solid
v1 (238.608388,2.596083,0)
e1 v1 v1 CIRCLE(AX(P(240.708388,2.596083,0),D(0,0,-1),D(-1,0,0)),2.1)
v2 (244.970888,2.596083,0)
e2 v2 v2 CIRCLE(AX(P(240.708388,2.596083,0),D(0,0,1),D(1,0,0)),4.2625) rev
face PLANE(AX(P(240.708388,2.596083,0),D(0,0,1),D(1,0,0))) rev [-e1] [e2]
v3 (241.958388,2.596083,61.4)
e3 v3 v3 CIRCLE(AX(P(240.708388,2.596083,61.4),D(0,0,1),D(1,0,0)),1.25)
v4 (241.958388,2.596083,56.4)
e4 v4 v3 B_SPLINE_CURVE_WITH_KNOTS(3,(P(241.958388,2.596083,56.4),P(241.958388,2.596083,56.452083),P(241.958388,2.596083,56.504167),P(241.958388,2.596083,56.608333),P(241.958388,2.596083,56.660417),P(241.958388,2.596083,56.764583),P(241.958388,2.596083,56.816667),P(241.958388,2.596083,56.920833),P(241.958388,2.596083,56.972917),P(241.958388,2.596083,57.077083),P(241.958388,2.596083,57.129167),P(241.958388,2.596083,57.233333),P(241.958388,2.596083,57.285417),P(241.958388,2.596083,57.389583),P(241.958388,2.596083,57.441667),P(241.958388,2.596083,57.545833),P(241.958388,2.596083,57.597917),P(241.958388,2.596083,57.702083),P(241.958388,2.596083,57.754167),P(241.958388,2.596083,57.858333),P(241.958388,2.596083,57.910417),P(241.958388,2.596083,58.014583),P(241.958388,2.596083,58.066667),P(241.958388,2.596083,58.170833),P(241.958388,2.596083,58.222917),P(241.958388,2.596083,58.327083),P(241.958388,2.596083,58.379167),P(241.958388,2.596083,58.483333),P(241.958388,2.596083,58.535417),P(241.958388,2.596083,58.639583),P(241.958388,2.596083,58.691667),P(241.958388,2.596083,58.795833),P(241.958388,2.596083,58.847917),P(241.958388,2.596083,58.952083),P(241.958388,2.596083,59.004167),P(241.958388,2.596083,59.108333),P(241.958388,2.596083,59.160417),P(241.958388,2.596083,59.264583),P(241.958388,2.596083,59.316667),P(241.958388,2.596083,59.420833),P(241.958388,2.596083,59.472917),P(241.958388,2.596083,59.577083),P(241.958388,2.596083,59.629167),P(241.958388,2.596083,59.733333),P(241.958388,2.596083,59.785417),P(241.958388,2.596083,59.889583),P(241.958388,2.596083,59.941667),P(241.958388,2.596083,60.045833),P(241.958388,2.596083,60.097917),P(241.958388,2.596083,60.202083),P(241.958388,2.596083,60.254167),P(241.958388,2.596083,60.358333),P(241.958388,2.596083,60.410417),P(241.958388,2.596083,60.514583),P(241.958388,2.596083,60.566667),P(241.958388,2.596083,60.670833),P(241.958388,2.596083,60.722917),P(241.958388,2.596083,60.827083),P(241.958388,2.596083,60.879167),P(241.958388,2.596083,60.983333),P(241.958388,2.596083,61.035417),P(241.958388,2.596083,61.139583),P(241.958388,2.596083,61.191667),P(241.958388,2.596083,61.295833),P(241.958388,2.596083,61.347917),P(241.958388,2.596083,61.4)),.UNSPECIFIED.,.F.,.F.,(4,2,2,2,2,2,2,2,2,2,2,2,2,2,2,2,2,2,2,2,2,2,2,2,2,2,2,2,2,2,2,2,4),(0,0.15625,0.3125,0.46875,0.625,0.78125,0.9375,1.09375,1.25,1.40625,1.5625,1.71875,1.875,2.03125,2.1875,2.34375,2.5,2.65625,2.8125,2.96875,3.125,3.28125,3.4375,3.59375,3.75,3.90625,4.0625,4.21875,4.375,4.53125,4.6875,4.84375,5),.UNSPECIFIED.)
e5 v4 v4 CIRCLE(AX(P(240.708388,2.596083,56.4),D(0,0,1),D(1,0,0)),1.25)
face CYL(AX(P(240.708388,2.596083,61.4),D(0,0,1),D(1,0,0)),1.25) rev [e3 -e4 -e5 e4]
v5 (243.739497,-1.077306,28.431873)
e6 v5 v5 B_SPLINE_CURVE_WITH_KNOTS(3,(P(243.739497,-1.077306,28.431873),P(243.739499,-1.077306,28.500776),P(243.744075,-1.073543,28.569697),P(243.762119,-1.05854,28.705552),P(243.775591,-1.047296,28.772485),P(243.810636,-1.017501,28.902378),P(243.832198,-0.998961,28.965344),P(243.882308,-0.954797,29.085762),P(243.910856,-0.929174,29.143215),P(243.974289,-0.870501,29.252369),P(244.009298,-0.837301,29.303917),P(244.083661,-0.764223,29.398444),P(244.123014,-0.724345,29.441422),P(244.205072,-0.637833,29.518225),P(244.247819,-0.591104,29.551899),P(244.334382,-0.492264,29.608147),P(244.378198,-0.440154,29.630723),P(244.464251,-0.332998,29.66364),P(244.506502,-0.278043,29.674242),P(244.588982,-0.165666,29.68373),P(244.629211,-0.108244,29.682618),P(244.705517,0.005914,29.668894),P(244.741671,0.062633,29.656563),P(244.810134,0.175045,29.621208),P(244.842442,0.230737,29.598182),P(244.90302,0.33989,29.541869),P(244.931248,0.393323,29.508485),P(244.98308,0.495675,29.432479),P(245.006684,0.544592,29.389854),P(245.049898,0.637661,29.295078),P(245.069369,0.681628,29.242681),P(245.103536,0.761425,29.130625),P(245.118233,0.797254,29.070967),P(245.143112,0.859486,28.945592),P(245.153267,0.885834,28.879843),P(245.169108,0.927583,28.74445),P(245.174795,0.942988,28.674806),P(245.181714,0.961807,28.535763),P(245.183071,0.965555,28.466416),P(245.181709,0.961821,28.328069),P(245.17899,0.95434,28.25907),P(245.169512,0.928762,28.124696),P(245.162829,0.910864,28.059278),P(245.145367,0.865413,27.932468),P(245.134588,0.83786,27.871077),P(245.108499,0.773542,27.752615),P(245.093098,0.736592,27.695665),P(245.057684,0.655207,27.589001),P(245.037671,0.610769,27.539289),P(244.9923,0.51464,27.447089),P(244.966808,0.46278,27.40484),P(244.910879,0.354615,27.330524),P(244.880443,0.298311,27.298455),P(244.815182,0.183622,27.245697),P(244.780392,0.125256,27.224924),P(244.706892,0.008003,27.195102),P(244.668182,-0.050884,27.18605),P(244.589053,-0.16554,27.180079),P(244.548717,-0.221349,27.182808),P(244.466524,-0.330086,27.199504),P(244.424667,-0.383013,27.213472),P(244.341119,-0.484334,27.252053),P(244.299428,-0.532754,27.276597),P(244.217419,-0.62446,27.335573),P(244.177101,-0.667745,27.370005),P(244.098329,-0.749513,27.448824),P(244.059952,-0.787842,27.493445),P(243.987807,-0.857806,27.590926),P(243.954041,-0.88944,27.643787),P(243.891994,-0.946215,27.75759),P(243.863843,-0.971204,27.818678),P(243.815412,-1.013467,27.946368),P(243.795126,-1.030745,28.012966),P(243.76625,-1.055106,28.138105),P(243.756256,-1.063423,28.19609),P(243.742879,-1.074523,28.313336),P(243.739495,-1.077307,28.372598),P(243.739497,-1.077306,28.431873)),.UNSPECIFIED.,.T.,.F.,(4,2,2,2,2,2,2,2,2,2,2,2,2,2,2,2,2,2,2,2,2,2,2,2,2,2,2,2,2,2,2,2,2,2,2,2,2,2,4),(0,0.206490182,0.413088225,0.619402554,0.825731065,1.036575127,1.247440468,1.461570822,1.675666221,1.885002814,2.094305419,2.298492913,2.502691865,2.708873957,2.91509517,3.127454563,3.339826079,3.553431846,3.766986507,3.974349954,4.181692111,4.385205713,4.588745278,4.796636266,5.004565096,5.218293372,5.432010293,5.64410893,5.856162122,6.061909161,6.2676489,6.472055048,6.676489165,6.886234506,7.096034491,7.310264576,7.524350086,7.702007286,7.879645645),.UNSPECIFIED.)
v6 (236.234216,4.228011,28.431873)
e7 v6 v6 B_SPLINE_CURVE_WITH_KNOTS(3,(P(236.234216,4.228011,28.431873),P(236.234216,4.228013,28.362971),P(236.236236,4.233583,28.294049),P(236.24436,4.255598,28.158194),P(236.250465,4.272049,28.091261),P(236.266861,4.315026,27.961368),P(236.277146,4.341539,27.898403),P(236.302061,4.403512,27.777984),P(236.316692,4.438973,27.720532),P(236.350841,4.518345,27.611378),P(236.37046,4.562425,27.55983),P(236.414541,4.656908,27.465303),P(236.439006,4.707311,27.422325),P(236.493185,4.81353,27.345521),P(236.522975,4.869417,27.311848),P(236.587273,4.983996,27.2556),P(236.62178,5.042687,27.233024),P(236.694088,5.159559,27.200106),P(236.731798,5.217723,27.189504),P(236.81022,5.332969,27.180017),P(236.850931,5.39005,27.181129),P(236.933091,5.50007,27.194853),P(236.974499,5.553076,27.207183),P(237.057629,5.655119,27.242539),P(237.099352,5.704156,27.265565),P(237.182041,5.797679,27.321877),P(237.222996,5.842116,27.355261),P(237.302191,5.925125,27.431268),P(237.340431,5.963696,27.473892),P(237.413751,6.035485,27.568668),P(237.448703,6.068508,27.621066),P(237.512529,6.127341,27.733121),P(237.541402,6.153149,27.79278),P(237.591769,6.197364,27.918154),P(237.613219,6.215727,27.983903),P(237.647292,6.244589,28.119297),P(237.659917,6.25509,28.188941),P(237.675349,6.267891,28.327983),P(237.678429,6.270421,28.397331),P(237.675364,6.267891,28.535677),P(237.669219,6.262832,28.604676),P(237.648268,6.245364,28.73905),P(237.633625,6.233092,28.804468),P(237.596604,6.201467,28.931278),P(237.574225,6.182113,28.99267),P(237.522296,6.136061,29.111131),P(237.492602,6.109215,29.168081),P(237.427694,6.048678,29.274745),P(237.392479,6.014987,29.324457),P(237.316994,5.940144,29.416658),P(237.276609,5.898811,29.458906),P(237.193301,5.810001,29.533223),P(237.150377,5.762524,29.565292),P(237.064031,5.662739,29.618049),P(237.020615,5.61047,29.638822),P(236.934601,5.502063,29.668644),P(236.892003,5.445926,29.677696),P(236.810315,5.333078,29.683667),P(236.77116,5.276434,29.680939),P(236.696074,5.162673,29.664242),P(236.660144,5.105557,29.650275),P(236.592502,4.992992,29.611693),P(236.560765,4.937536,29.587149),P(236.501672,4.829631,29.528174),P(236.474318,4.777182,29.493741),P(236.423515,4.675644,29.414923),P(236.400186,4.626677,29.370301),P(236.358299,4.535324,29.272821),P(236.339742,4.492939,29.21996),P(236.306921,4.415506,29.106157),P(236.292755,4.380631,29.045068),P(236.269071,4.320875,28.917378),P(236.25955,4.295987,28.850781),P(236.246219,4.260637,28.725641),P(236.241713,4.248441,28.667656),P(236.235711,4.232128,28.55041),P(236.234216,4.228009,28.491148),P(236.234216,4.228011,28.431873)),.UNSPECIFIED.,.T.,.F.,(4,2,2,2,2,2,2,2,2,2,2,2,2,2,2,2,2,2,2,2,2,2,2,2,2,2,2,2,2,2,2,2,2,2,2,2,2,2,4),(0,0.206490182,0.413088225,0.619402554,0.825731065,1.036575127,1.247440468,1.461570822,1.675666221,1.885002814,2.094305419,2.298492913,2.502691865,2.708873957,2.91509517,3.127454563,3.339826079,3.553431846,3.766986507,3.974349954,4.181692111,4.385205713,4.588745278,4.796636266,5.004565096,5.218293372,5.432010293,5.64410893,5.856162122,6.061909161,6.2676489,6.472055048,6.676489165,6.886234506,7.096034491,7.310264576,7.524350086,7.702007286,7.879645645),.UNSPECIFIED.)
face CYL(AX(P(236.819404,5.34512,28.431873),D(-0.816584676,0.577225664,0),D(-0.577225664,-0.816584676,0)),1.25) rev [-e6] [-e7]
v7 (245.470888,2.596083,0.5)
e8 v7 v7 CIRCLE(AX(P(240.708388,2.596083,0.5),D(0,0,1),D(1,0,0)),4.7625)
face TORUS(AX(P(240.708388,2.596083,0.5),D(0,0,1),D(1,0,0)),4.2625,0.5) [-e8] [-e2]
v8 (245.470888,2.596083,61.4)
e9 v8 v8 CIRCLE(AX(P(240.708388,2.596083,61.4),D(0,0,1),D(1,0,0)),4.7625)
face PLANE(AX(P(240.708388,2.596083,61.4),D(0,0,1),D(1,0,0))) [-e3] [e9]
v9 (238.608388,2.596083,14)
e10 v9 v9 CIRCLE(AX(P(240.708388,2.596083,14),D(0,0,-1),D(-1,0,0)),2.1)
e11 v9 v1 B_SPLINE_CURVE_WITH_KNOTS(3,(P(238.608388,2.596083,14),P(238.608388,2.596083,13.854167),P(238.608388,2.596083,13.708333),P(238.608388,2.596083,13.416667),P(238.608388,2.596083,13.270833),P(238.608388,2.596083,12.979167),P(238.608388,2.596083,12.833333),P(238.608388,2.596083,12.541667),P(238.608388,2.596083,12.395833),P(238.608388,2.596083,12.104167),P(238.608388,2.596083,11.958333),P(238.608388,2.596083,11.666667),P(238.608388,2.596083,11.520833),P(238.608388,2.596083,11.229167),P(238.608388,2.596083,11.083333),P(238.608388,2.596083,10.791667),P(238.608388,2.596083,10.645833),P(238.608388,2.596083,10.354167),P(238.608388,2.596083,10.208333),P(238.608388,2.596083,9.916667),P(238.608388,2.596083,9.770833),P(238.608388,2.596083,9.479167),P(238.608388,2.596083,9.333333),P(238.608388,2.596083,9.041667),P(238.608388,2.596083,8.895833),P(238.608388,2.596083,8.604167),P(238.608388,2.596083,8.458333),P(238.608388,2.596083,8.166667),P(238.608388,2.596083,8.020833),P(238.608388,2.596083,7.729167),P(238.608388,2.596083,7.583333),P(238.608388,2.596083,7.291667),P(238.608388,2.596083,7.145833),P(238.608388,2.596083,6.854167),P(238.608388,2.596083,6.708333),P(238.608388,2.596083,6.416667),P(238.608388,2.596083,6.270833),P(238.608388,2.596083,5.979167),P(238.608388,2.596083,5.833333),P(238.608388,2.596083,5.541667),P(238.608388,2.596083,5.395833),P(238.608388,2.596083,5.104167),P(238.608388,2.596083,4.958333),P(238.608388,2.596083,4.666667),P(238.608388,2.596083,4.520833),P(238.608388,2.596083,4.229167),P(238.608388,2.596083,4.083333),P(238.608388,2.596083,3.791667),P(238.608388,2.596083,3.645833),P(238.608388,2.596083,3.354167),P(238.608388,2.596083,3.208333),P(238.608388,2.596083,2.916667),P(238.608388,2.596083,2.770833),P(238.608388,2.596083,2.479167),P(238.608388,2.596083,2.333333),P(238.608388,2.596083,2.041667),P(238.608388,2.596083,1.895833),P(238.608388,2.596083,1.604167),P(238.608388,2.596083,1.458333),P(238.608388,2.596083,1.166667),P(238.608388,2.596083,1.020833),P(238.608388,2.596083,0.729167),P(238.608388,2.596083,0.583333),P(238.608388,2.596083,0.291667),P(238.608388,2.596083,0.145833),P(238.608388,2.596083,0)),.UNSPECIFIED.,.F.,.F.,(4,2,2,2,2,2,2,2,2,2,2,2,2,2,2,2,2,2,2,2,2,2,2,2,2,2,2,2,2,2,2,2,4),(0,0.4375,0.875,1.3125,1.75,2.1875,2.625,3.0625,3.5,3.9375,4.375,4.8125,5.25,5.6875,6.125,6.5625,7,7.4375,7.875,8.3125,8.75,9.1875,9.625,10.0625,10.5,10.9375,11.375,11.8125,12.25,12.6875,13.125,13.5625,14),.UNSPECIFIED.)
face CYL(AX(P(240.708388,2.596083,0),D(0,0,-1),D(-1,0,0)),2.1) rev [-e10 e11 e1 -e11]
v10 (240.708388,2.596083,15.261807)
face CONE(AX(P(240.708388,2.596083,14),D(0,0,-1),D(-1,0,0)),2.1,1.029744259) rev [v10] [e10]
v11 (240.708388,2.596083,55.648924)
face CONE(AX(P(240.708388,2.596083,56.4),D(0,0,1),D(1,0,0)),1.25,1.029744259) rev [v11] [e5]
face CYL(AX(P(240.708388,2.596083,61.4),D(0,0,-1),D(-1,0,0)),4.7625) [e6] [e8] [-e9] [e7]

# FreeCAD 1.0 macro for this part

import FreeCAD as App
import Part
import Sketcher
Q = App.Units.Quantity


def edges_at(feature, points):
    """Names of the edges that pass closest to the given points."""
    edges = feature.Shape.Edges
    near = lambda p: min(range(len(edges)), key=lambda i: edges[i].distToShape(Part.Vertex(*p))[0])
    return sorted({f"Edge{near(p) + 1}" for p in points})

doc = App.newDocument("Part")
params = doc.addObject("Spreadsheet::Sheet", "Params")
for row, (alias, value) in enumerate([
    ("pad1_length", "61.4 mm"),
    ("sketch2_diameter", "4.2 mm"),
    ("hole_diameter", "4.2 mm"),
    ("hole_depth", "14 mm"),
    ("fillet_radius", "0.5 mm"),
    ("sketch3_diameter", "2.5 mm"),
    ("hole2_diameter", "2.5 mm"),
    ("hole2_depth", "5 mm"),
    ("sketch4_diameter", "2.5 mm"),
    ("hole3_diameter", "2.5 mm"),
    ("hole3_depth", "10 mm"),
], start=1):
    params.set(f"A{row}", alias)
    params.set(f"B{row}", "=" + value)
    params.setAlias(f"B{row}", alias)

body = doc.addObject("PartDesign::Body", "Body")

# Sketch on XY plane
sketch1 = body.newObject("Sketcher::SketchObject", "Sketch")
sketch1.AttachmentSupport = (doc.getObject("XY_Plane"), [""])
sketch1.MapMode = "FlatFace"
sketch1.addGeometry(Part.Circle(App.Vector(240.7, 2.6, 0), App.Vector(0, 0, 1), 4.8), False)
sketch1.addConstraint([
    Sketcher.Constraint("Diameter", 0, Q("9.525 mm")),
    Sketcher.Constraint("DistanceX", -1, 1, 0, 3, Q("240.708388 mm")),
    Sketcher.Constraint("DistanceY", -1, 1, 0, 3, Q("2.596083 mm")),
])
pad1 = body.newObject("PartDesign::Pad", "Pad")
pad1.Profile = sketch1
pad1.setExpression("Length", "Params.pad1_length")

# Sketch on XY plane
sketch2 = body.newObject("Sketcher::SketchObject", "Sketch001")
sketch2.AttachmentSupport = (doc.getObject("XY_Plane"), [""])
sketch2.MapMode = "FlatFace"
sketch2.addGeometry(Part.Circle(App.Vector(240.7, 2.6, 0), App.Vector(0, 0, 1), 2.1), False)
sketch2.addConstraint([
    Sketcher.Constraint("Diameter", 0, Q("4.2 mm")),
    Sketcher.Constraint("DistanceX", -1, 1, 0, 3, Q("240.708388 mm")),
    Sketcher.Constraint("DistanceY", -1, 1, 0, 3, Q("2.596083 mm")),
])
sketch2.setExpression("Constraints[0]", "Params.sketch2_diameter")
doc.recompute()
hole = body.newObject("PartDesign::Hole", "Hole")
hole.Profile = sketch2
hole.ThreadType = "None"
hole.setExpression("Diameter", "Params.hole_diameter")
hole.DepthType = "Dimension"
hole.setExpression("Depth", "Params.hole_depth")
hole.DrillPoint = "Angled"
hole.DrillPointAngle = 118
hole.Reversed = True
doc.recompute()

fillet = body.newObject("PartDesign::Fillet", "Fillet")
fillet.Base = (hole, edges_at(hole, [(235.946, 2.596, 0)]))
fillet.setExpression("Radius", "Params.fillet_radius")

# Sketch on XY plane
sketch3 = body.newObject("Sketcher::SketchObject", "Sketch002")
sketch3.AttachmentSupport = (doc.getObject("XY_Plane"), [""])
sketch3.MapMode = "FlatFace"
sketch3.AttachmentOffset = App.Placement(App.Vector(0, 0, 61.4), App.Rotation())
sketch3.addGeometry(Part.Circle(App.Vector(240.7, 2.6, 0), App.Vector(0, 0, 1), 1.2), False)
sketch3.addConstraint([
    Sketcher.Constraint("Diameter", 0, Q("2.5 mm")),
    Sketcher.Constraint("DistanceX", -1, 1, 0, 3, Q("240.708388 mm")),
    Sketcher.Constraint("DistanceY", -1, 1, 0, 3, Q("2.596083 mm")),
])
sketch3.setExpression("Constraints[0]", "Params.sketch3_diameter")
doc.recompute()
hole2 = body.newObject("PartDesign::Hole", "Hole001")
hole2.Profile = sketch3
hole2.ThreadType = "None"
hole2.setExpression("Diameter", "Params.hole2_diameter")
hole2.DepthType = "Dimension"
hole2.setExpression("Depth", "Params.hole2_depth")
hole2.DrillPoint = "Angled"
hole2.DrillPointAngle = 118

# Sketch on an angled plane
sketch4 = body.newObject("Sketcher::SketchObject", "Sketch003")
sketch4.Placement = App.Placement(App.Vector(155.394231, -109.844748, 0), App.Rotation(App.Vector(-0.577225664, -0.816584676, 0), App.Vector(0, 0, 1), App.Vector(-0.816584676, 0.577225664, 0), "ZXY"))
sketch4.addGeometry(Part.Circle(App.Vector(-141.1, 28.4, 0), App.Vector(0, 0, 1), 1.2), False)
sketch4.addConstraint([
    Sketcher.Constraint("Diameter", 0, Q("2.5 mm")),
    Sketcher.Constraint("DistanceX", 0, 3, -1, 1, Q("141.062981 mm")),
    Sketcher.Constraint("DistanceY", -1, 1, 0, 3, Q("28.431873 mm")),
])
sketch4.setExpression("Constraints[0]", "Params.sketch4_diameter")
doc.recompute()
hole3 = body.newObject("PartDesign::Hole", "Hole002")
hole3.Profile = sketch4
hole3.ThreadType = "None"
hole3.setExpression("Diameter", "Params.hole3_diameter")
hole3.DepthType = "Dimension"
hole3.setExpression("Depth", "Params.hole3_depth")
hole3.DrillPoint = "Angled"
hole3.DrillPointAngle = 118

doc.recompute()
